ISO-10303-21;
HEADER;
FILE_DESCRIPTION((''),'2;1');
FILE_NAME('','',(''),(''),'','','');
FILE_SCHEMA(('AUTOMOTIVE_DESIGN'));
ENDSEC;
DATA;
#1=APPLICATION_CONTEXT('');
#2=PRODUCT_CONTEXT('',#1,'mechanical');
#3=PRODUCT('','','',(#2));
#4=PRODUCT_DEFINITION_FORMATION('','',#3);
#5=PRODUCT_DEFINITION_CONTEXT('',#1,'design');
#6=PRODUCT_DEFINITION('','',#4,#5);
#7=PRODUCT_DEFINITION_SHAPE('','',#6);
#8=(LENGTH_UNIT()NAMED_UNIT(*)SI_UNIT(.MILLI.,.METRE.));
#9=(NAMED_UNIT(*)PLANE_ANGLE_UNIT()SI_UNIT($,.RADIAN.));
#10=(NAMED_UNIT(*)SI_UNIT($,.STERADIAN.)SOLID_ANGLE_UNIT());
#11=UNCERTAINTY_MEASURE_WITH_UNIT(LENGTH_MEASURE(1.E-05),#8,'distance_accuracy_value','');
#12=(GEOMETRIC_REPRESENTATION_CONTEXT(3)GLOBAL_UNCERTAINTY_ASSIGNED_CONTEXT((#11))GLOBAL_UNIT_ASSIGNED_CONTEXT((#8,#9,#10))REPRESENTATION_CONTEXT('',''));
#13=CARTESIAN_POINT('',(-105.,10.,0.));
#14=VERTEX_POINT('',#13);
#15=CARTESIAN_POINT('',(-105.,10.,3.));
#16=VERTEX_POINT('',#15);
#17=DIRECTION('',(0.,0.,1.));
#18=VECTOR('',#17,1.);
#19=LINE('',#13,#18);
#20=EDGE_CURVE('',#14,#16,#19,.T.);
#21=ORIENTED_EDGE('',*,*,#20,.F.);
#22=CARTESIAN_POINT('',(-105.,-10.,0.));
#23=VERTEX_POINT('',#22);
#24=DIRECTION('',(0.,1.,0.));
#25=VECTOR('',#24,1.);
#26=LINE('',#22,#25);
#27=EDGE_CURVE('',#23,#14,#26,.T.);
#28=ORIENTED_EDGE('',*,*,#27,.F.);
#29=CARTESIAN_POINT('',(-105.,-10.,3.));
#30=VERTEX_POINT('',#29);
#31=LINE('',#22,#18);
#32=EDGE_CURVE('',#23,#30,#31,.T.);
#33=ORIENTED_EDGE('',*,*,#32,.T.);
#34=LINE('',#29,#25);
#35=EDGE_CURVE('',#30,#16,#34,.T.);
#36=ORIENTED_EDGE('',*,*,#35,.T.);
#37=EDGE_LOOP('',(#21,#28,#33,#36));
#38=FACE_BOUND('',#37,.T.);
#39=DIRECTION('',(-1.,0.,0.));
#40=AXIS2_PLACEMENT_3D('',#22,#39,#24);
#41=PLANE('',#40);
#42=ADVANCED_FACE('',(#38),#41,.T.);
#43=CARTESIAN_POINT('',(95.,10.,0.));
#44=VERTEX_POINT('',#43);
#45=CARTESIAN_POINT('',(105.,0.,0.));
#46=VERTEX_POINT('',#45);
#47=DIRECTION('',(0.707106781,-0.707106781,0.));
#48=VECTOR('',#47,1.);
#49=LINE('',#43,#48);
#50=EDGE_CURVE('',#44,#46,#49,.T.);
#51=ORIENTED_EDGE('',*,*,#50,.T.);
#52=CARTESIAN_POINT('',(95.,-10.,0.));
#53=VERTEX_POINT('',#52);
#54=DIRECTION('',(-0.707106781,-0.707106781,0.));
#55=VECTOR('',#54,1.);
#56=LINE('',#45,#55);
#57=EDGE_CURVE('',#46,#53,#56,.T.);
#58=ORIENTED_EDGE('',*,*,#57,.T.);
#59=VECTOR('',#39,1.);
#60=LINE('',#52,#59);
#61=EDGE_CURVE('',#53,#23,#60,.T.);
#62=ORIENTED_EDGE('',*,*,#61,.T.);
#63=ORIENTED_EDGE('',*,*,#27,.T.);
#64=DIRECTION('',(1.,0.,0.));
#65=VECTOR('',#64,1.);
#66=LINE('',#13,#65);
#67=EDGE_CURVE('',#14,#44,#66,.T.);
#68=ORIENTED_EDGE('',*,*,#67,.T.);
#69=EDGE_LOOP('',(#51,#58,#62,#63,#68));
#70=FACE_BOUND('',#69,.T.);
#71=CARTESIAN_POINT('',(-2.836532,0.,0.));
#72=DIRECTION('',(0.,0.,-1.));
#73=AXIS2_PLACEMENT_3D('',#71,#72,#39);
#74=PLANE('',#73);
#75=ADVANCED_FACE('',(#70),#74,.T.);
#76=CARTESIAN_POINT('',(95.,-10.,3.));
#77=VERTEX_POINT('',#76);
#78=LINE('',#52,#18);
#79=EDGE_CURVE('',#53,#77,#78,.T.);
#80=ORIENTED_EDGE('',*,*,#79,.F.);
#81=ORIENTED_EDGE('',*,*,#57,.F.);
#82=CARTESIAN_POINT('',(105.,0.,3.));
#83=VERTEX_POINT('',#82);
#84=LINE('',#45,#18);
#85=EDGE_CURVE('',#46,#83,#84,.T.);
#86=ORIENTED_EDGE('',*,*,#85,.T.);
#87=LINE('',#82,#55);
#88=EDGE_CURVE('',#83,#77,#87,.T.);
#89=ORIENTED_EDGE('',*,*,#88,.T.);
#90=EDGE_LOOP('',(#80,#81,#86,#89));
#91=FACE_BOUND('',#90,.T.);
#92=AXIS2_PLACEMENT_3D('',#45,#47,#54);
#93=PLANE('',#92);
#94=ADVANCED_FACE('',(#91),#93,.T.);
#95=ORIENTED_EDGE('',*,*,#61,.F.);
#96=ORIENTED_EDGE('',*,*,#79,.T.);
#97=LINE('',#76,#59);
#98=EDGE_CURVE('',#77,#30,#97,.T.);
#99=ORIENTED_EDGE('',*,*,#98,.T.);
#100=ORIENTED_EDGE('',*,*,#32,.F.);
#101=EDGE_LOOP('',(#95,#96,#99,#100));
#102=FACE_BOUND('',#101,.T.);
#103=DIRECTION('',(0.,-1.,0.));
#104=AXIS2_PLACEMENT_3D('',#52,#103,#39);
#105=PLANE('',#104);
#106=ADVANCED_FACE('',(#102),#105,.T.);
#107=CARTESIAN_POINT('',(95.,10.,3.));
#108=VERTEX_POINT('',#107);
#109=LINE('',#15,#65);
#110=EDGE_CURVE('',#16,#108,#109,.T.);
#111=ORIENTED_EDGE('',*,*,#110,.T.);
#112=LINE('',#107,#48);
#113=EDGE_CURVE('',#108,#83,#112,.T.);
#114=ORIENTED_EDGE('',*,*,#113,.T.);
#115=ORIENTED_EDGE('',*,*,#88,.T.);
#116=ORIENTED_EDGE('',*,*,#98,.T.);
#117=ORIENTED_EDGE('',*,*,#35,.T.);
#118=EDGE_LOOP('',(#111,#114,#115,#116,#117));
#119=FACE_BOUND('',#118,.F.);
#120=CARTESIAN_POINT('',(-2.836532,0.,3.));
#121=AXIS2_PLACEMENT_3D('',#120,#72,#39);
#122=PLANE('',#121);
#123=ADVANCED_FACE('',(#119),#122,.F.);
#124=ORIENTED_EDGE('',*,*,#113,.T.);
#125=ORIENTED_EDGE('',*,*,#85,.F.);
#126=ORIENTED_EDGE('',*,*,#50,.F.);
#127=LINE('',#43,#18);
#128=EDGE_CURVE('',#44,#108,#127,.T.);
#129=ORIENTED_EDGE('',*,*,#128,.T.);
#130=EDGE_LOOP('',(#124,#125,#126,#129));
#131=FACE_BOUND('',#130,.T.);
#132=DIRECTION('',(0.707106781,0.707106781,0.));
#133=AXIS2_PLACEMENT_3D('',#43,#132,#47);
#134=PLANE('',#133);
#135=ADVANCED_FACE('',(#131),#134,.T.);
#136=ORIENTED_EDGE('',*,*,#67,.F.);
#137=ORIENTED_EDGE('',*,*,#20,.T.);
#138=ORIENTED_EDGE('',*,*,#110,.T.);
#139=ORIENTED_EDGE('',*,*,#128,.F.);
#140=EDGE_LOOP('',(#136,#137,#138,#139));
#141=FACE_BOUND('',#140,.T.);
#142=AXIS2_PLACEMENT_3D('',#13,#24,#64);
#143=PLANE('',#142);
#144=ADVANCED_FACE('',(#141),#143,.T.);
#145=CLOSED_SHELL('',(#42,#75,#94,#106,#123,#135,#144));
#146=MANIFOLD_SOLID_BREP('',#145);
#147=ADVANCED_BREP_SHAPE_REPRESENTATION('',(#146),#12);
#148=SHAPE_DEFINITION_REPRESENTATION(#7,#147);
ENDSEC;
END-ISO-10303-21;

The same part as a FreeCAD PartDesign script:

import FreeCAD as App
import Part
import Sketcher

V = App.Vector
Q = App.Units.Quantity


def add_polygon(sketch, points):
    """Adds a closed chain of lines whose ends are joined by coincident constraints."""
    first, n = sketch.GeometryCount, len(points)
    for a, b in zip(points, points[1:] + points[:1]):
        sketch.addGeometry(Part.LineSegment(App.Vector(*a, 0), App.Vector(*b, 0)), False)
    for i in range(n):
        sketch.addConstraint(Sketcher.Constraint("Coincident", first + i, 2, first + (i + 1) % n, 1))

doc = App.newDocument("Part")
body = doc.addObject("PartDesign::Body", "Body")

# Sketch on XY plane
sketch1 = body.newObject("Sketcher::SketchObject", "Sketch")
sketch1.AttachmentSupport = (doc.getObject("XY_Plane"), [""])
sketch1.MapMode = "FlatFace"
add_polygon(sketch1, [(-105, 10), (-105, -10), (95, -10), (105, 0), (95, 10)])  # lines 0-4
sketch1.addConstraint(Sketcher.Constraint("Vertical", 0))
sketch1.addConstraint(Sketcher.Constraint("Horizontal", 1))
sketch1.addConstraint(Sketcher.Constraint("Horizontal", 4))
sketch1.addConstraint(Sketcher.Constraint("Symmetric", 1, 2, 3, 2, -1))
sketch1.addConstraint(Sketcher.Constraint("PointOnObject", 2, 2, -1))
sketch1.addConstraint(Sketcher.Constraint("Perpendicular", 2, 3))
sketch1.addConstraint(Sketcher.Constraint("DistanceX", 1, 1, 1, 2, Q("200 mm")))
sketch1.addConstraint(Sketcher.Constraint("DistanceY", 0, 2, 0, 1, Q("20 mm")))
sketch1.addConstraint(Sketcher.Constraint("DistanceX", 0, 2, -1, 1, Q("105 mm")))
pad1 = body.newObject("PartDesign::Pad", "Pad")
pad1.Profile = sketch1
pad1.Length = 3

doc.recompute()
